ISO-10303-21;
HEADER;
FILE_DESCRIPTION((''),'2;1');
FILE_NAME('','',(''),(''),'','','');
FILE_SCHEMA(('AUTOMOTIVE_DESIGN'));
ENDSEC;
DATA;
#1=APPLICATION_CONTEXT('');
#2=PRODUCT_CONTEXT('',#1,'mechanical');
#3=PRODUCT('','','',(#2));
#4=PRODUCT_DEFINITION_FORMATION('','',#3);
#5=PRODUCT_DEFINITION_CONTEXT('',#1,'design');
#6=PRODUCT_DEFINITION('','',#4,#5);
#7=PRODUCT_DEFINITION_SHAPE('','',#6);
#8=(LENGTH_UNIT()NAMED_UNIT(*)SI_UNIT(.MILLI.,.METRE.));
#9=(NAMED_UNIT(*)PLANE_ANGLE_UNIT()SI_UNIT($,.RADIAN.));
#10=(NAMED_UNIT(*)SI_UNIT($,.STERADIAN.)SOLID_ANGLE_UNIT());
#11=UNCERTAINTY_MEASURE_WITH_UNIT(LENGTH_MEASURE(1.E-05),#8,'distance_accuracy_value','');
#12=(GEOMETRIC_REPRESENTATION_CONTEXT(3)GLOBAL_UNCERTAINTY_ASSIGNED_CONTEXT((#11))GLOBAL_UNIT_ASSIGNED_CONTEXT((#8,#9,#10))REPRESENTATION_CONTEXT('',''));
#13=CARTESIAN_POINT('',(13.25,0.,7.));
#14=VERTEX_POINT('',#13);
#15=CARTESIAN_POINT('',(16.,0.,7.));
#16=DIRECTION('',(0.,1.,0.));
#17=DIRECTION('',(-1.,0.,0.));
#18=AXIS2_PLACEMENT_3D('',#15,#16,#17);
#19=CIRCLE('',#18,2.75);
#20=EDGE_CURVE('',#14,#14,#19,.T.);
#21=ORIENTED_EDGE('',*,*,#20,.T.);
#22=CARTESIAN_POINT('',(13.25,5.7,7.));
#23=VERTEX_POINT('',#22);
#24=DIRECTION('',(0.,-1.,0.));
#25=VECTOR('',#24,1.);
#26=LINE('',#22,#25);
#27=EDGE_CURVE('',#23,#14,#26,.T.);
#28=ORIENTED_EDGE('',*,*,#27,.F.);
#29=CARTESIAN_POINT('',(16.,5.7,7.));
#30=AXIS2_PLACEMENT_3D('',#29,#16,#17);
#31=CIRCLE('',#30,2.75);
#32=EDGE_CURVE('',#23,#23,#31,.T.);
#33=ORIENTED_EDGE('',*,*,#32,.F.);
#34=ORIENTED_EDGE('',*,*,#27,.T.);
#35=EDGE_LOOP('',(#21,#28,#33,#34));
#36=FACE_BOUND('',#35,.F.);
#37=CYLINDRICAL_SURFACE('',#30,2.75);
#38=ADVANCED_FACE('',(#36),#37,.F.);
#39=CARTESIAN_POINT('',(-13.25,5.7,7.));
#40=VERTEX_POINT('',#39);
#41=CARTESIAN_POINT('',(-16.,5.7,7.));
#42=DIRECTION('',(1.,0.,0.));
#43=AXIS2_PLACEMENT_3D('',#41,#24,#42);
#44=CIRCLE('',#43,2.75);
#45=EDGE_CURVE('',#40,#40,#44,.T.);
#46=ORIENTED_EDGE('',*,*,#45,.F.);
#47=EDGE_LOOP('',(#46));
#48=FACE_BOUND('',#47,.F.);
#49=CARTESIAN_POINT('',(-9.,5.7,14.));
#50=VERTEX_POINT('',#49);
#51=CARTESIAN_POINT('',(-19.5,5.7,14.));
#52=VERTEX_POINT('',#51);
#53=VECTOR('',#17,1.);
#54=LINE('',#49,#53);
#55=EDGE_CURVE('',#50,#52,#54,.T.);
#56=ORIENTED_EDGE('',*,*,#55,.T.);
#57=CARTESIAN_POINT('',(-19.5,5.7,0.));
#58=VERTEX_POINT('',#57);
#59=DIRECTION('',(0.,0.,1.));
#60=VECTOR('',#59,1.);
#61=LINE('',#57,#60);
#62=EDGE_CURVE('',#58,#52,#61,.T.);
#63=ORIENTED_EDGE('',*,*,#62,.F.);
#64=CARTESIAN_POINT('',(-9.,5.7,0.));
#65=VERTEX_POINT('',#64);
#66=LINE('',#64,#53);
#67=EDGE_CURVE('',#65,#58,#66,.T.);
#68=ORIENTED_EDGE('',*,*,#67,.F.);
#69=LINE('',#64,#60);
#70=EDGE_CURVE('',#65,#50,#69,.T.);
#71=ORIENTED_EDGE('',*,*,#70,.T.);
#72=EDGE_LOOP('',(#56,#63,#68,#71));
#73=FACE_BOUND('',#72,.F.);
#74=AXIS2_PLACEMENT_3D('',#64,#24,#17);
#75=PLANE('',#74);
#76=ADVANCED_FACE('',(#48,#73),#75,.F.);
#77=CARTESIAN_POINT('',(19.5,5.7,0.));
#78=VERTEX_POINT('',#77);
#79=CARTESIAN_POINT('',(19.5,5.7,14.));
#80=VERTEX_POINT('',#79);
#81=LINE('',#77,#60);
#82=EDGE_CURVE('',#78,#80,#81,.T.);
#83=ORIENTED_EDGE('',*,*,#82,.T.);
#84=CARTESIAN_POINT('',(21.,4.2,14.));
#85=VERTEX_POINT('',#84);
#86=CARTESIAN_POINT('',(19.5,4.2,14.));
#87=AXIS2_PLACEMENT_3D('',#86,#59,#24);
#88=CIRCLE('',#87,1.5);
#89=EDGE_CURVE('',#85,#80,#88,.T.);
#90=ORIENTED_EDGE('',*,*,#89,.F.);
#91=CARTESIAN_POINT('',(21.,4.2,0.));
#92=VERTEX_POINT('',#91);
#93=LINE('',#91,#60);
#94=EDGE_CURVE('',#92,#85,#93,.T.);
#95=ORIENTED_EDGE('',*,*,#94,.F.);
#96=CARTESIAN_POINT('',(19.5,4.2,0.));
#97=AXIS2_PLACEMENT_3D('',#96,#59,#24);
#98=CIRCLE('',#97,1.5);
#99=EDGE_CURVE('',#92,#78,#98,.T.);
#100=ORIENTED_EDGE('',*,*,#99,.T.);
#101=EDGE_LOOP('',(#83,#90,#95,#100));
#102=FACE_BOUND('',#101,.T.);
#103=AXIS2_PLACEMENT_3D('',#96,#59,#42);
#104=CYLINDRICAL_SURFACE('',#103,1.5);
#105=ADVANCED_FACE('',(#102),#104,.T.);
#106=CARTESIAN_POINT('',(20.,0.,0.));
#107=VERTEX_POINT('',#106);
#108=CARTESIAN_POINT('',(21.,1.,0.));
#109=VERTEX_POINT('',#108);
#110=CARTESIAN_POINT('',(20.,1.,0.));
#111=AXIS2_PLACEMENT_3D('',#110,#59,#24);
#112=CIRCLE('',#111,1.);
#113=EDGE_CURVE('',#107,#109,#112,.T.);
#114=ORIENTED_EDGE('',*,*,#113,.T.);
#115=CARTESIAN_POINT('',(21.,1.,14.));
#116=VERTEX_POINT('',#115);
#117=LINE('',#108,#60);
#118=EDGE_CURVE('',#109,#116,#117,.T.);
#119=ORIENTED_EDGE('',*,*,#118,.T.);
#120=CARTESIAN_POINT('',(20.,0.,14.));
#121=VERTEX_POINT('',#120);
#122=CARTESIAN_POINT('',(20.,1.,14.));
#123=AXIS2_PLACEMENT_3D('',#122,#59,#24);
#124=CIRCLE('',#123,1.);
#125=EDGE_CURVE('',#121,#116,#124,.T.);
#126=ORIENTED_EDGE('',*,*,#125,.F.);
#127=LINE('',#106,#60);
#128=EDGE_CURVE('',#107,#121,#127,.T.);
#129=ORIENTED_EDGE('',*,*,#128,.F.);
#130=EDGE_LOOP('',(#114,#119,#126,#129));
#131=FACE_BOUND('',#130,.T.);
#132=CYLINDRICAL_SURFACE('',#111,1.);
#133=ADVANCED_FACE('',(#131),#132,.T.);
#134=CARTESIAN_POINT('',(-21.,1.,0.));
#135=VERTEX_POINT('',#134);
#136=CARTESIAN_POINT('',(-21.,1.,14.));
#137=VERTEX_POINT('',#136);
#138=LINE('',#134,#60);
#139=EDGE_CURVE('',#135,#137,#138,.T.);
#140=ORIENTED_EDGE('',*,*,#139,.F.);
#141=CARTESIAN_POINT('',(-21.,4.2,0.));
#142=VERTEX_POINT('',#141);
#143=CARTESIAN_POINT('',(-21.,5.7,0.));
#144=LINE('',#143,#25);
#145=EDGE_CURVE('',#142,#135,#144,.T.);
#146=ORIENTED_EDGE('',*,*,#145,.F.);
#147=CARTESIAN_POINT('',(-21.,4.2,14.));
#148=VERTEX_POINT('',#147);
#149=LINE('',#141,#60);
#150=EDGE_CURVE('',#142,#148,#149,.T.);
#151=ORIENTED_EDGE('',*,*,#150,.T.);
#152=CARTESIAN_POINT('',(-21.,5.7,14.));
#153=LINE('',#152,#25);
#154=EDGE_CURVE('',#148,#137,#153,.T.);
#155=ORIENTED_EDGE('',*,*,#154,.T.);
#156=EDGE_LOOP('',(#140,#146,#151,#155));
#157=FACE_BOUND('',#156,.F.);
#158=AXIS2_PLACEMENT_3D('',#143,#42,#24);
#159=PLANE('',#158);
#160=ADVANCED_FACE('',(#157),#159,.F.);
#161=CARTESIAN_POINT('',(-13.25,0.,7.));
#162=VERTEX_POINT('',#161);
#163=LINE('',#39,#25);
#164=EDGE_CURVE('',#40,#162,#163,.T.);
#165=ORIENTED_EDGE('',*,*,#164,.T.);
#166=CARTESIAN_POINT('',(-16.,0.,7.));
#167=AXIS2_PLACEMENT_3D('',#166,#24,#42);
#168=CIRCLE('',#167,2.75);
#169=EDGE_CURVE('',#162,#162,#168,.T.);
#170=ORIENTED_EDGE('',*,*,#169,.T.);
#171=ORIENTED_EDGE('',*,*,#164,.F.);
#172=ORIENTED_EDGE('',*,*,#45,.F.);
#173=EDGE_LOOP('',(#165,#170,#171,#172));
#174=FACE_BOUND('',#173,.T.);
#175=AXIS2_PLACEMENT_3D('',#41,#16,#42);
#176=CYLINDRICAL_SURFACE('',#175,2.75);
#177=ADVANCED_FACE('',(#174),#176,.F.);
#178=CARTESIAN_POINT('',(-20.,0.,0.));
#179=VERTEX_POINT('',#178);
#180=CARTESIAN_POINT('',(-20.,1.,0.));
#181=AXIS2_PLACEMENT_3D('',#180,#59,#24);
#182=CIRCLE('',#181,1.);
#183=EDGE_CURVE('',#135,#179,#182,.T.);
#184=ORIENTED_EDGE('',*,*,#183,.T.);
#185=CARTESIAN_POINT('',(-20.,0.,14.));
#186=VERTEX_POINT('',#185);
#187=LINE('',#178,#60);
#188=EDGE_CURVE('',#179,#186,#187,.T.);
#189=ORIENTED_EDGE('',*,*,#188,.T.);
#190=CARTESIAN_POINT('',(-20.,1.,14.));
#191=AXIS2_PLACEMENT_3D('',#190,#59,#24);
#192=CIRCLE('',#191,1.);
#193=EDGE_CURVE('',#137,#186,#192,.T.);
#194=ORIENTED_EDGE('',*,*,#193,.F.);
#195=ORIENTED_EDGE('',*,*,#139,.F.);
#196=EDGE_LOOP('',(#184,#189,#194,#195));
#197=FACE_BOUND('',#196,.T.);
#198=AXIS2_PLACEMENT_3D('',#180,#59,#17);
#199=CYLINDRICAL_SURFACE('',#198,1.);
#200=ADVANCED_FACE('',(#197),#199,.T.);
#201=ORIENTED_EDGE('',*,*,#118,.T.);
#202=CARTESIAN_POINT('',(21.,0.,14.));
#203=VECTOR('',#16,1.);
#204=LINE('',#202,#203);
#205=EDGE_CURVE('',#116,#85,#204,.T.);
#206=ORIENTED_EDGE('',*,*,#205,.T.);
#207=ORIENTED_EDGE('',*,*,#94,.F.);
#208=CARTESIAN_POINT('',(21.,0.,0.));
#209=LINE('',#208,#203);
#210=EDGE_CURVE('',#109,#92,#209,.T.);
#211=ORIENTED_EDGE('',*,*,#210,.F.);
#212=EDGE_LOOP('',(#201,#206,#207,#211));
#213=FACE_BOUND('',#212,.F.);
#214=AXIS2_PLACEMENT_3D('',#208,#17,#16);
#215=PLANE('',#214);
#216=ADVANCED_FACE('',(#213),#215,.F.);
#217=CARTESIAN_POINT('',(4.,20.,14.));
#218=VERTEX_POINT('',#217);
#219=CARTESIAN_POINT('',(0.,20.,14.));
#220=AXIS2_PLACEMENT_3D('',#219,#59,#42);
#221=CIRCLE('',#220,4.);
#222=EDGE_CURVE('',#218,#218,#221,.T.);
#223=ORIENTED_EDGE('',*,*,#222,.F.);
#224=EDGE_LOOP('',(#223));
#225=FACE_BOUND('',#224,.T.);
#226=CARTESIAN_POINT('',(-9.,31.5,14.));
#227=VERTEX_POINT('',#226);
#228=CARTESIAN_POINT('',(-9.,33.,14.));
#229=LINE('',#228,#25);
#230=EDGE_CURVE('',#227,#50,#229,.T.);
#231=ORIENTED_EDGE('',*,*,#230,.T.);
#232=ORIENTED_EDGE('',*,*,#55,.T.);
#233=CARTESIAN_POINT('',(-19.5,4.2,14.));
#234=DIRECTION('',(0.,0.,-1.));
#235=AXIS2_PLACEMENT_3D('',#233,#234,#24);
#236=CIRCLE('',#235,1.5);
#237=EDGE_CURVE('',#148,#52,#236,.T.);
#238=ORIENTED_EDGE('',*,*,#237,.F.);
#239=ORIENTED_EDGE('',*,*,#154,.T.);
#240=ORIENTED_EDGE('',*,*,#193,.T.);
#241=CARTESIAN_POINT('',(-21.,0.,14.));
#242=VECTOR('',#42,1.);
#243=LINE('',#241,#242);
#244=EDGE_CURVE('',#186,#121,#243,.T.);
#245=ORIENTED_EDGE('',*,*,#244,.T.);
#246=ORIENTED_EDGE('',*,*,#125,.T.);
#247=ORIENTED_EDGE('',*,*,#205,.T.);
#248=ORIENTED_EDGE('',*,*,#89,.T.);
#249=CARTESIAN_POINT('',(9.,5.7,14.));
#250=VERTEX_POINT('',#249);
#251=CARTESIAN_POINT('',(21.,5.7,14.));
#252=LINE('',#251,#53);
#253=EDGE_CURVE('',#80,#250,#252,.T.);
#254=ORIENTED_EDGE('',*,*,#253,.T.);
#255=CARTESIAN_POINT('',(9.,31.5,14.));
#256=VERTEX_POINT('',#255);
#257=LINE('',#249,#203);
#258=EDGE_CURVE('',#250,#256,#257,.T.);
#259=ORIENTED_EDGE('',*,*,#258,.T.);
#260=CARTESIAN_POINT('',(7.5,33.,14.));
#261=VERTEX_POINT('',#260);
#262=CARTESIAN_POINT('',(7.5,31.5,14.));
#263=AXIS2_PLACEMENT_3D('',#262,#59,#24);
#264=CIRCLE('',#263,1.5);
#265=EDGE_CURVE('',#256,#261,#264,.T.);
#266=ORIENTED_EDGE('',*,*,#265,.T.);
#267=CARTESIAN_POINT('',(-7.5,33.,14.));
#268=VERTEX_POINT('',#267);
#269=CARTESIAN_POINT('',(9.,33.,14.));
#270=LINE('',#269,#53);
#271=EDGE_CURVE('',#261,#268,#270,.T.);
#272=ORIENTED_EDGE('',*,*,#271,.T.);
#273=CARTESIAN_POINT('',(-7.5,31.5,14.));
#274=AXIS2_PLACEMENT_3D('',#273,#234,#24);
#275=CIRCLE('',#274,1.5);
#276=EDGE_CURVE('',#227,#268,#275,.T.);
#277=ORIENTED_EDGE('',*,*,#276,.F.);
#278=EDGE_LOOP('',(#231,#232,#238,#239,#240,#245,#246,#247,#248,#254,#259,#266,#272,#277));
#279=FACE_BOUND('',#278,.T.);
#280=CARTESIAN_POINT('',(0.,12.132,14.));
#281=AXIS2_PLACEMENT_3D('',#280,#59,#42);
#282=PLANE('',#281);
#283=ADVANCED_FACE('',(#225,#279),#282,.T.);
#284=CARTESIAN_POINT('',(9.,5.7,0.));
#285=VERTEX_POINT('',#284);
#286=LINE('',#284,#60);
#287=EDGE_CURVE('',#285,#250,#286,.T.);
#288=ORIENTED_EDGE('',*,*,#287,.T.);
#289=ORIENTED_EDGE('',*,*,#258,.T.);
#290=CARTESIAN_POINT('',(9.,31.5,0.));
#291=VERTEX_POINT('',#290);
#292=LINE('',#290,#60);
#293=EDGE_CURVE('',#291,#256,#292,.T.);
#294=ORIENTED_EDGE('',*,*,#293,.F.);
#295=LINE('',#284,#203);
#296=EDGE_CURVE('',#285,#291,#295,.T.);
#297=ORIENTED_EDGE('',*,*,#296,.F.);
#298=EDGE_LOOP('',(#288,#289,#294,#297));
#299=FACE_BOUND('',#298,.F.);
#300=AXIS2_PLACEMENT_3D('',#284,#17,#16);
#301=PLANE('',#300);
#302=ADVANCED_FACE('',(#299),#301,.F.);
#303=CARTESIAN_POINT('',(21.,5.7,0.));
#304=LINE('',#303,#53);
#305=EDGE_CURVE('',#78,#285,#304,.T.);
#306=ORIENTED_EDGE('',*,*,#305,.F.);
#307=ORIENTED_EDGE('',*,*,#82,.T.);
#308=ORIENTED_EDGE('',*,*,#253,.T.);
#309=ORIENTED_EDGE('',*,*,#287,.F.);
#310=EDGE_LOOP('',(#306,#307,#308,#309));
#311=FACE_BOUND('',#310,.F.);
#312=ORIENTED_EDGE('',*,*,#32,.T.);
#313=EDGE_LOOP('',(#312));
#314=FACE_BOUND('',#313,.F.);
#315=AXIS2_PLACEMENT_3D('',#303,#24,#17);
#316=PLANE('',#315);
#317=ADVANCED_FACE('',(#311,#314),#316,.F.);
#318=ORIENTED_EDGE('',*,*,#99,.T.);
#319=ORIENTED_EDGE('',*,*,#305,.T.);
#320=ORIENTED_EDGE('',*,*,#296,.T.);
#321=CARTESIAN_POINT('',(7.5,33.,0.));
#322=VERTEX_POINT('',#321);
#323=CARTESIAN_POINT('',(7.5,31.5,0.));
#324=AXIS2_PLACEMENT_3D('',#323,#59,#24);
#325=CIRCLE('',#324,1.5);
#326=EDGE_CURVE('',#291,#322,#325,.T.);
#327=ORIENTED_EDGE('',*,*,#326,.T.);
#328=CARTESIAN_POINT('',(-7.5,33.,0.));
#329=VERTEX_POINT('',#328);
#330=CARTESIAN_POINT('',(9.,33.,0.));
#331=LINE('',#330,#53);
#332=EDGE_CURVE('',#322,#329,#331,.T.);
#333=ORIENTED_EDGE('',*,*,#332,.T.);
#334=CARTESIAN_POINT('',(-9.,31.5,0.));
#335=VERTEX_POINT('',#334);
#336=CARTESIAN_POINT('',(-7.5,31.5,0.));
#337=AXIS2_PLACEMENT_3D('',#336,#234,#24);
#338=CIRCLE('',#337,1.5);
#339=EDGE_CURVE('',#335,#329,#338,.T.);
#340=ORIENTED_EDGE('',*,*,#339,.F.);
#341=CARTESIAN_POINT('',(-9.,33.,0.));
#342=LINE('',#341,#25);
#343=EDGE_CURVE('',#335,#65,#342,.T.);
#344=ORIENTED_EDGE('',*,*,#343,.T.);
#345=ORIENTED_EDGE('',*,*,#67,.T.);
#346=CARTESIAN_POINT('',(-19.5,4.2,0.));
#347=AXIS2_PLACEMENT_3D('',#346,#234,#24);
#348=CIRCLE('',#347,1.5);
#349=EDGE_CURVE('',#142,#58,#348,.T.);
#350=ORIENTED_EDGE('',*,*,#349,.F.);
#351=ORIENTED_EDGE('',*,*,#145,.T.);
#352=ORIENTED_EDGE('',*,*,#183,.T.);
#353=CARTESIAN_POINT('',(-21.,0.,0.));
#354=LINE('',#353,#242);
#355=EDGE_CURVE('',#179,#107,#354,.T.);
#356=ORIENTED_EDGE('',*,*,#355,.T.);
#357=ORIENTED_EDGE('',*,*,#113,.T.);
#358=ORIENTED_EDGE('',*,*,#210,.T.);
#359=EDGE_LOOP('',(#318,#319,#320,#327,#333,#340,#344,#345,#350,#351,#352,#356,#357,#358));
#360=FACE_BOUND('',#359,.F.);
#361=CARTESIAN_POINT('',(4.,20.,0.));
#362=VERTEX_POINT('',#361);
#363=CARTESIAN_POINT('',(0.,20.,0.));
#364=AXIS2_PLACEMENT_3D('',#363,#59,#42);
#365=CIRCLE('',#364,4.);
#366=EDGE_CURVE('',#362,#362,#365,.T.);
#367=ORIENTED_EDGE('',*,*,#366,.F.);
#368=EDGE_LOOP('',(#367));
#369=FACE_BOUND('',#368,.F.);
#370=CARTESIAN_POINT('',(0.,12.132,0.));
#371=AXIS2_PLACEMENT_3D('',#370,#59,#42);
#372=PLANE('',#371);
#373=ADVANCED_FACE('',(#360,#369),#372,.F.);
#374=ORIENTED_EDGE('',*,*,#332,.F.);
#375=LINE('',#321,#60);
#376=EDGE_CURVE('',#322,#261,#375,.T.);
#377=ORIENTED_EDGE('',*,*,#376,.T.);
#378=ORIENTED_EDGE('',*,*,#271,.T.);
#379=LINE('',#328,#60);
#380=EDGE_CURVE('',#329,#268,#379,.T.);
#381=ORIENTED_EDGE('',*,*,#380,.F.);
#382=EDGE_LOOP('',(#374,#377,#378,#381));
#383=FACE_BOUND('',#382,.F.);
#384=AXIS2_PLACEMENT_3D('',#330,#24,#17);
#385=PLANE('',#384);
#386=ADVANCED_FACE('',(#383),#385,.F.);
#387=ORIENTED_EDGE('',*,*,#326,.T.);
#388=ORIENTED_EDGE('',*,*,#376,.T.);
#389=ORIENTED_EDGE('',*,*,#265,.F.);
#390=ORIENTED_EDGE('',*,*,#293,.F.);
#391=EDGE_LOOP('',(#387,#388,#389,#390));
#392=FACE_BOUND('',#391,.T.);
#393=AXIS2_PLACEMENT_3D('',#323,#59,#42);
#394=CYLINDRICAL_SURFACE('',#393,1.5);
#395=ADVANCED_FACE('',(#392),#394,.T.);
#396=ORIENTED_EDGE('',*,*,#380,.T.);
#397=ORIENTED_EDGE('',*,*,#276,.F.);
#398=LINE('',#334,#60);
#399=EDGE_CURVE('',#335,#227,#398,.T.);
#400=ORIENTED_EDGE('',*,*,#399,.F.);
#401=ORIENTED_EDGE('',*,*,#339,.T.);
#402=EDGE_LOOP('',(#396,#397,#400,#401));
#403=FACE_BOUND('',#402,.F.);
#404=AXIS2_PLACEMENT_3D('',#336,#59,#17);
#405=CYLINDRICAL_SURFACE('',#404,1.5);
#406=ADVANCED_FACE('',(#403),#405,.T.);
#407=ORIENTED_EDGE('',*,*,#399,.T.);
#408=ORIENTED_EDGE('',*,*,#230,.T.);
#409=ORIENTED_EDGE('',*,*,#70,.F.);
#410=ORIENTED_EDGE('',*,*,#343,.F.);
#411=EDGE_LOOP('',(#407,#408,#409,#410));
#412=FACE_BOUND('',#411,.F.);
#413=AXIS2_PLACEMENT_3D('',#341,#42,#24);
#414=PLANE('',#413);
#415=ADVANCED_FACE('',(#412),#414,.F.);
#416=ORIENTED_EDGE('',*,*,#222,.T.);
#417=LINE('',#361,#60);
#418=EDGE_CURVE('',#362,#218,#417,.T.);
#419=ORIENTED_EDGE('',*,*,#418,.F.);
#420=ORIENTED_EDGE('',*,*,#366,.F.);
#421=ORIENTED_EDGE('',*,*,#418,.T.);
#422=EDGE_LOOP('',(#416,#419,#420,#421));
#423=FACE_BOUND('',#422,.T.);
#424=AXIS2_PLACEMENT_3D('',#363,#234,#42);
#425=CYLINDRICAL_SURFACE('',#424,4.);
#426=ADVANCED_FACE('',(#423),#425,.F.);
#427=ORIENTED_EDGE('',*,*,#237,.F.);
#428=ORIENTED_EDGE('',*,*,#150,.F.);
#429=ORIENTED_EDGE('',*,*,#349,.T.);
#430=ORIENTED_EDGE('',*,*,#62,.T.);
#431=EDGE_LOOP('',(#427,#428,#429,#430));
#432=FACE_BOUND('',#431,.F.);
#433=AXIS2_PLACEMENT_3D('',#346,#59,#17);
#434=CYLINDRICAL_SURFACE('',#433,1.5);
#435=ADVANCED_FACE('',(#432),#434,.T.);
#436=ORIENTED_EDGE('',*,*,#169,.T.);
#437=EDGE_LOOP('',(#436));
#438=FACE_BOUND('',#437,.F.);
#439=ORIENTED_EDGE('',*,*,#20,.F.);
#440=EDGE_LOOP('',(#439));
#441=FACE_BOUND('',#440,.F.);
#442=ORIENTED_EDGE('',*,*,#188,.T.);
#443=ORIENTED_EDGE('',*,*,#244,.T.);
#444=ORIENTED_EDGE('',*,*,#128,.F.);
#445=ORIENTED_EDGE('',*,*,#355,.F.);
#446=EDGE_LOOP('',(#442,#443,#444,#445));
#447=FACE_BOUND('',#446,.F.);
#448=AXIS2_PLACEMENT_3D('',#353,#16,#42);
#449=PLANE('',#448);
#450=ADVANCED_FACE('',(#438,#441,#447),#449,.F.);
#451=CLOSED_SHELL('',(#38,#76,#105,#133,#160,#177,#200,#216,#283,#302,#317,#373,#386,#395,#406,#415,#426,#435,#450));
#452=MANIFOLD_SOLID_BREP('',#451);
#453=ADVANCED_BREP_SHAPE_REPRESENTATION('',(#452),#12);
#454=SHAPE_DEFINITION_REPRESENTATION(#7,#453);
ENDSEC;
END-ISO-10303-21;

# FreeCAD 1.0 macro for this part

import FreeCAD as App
import Part
import Sketcher

V = App.Vector
Q = App.Units.Quantity


def edges_at(feature, points):
    """Names of the edges that pass closest to the given points."""
    edges = feature.Shape.Edges
    near = lambda p: min(range(len(edges)), key=lambda i: edges[i].distToShape(Part.Vertex(*p))[0])
    return sorted({f"Edge{near(p) + 1}" for p in points})

doc = App.newDocument("Part")
params = doc.addObject("Spreadsheet::Sheet", "Params")
for row, (alias, value) in enumerate([
    ("sketch1_diameter", "8 mm"),
    ("sketch1_width", "42 mm"),
    ("sketch1_width2", "12 mm"),
    ("sketch1_height", "5.7 mm"),
    ("sketch1_height2", "27.3 mm"),
    ("pad1_length", "14 mm"),
    ("sketch2_diameter", "5.5 mm"),
    ("pocket1_length", "5.7 mm"),
    ("fillet_radius", "1.5 mm"),
    ("fillet2_radius", "1 mm"),
], start=1):
    params.set(f"A{row}", alias)
    params.set(f"B{row}", "=" + value)
    params.setAlias(f"B{row}", alias)

body = doc.addObject("PartDesign::Body", "Body")

sketch1 = body.newObject("Sketcher::SketchObject", "Sketch")
sketch1.AttachmentSupport = (doc.getObject("XY_Plane"), [""])
sketch1.MapMode = "FlatFace"
sketch1.addGeometry(Part.LineSegment(V(-21, 0, 0), V(21, 0, 0)), False)
sketch1.addGeometry(Part.LineSegment(V(21, 0, 0), V(21, 5.7, 0)), False)
sketch1.addGeometry(Part.LineSegment(V(21, 5.7, 0), V(9, 5.7, 0)), False)
sketch1.addGeometry(Part.LineSegment(V(9, 5.7, 0), V(9, 33, 0)), False)
sketch1.addGeometry(Part.LineSegment(V(9, 33, 0), V(-9, 33, 0)), False)
sketch1.addGeometry(Part.LineSegment(V(-9, 33, 0), V(-9, 5.7, 0)), False)
sketch1.addGeometry(Part.LineSegment(V(-9, 5.7, 0), V(-21, 5.7, 0)), False)
sketch1.addGeometry(Part.LineSegment(V(-21, 5.7, 0), V(-21, 0, 0)), False)
sketch1.addGeometry(Part.Circle(V(0, 20, 0), V(0, 0, 1), 4), False)
sketch1.addConstraint(Sketcher.Constraint("Coincident", 0, 2, 1, 1))
sketch1.addConstraint(Sketcher.Constraint("Coincident", 1, 2, 2, 1))
sketch1.addConstraint(Sketcher.Constraint("Coincident", 2, 2, 3, 1))
sketch1.addConstraint(Sketcher.Constraint("Coincident", 3, 2, 4, 1))
sketch1.addConstraint(Sketcher.Constraint("Coincident", 4, 2, 5, 1))
sketch1.addConstraint(Sketcher.Constraint("Coincident", 5, 2, 6, 1))
sketch1.addConstraint(Sketcher.Constraint("Coincident", 6, 2, 7, 1))
sketch1.addConstraint(Sketcher.Constraint("Coincident", 7, 2, 0, 1))
sketch1.addConstraint(Sketcher.Constraint("Horizontal", 0))
sketch1.addConstraint(Sketcher.Constraint("Vertical", 1))
sketch1.addConstraint(Sketcher.Constraint("Horizontal", 2))
sketch1.addConstraint(Sketcher.Constraint("Vertical", 3))
sketch1.addConstraint(Sketcher.Constraint("Horizontal", 4))
sketch1.addConstraint(Sketcher.Constraint("Vertical", 5))
sketch1.addConstraint(Sketcher.Constraint("Horizontal", 6))
sketch1.addConstraint(Sketcher.Constraint("Vertical", 7))
sketch1.addConstraint(Sketcher.Constraint("Symmetric", 0, 2, 7, 2, -1, 1))
sketch1.addConstraint(Sketcher.Constraint("Symmetric", 2, 2, 5, 2, -2))
sketch1.addConstraint(Sketcher.Constraint("PointOnObject", 8, 3, -2))
sketch1.addConstraint(Sketcher.Constraint("Diameter", 8, Q("8 mm")))
sketch1.addConstraint(Sketcher.Constraint("DistanceX", 0, 1, 0, 2, Q("42 mm")))
sketch1.addConstraint(Sketcher.Constraint("DistanceX", 2, 2, 2, 1, Q("12 mm")))
sketch1.addConstraint(Sketcher.Constraint("DistanceY", 1, 1, 1, 2, Q("5.7 mm")))
sketch1.addConstraint(Sketcher.Constraint("DistanceY", 3, 1, 3, 2, Q("27.3 mm")))
sketch1.addConstraint(Sketcher.Constraint("DistanceY", -1, 1, 8, 3, Q("20 mm")))
sketch1.setExpression("Constraints[19]", "Params.sketch1_diameter")
sketch1.setExpression("Constraints[20]", "Params.sketch1_width")
sketch1.setExpression("Constraints[21]", "Params.sketch1_width2")
sketch1.setExpression("Constraints[22]", "Params.sketch1_height")
sketch1.setExpression("Constraints[23]", "Params.sketch1_height2")
pad1 = body.newObject("PartDesign::Pad", "Pad")
pad1.Profile = sketch1
pad1.setExpression("Length", "Params.pad1_length")

sketch2 = body.newObject("Sketcher::SketchObject", "Sketch001")
sketch2.AttachmentSupport = (doc.getObject("XZ_Plane"), [""])
sketch2.MapMode = "FlatFace"
sketch2.AttachmentOffset = App.Placement(V(0, 0, -5.7), App.Rotation())
sketch2.addGeometry(Part.Circle(V(16, 7, 0), V(0, 0, 1), 2.8), False)
sketch2.addConstraint(Sketcher.Constraint("Diameter", 0, Q("5.5 mm")))
sketch2.addConstraint(Sketcher.Constraint("DistanceX", -1, 1, 0, 3, Q("16 mm")))
sketch2.addConstraint(Sketcher.Constraint("DistanceY", -1, 1, 0, 3, Q("7 mm")))
sketch2.setExpression("Constraints[0]", "Params.sketch2_diameter")
pocket1 = body.newObject("PartDesign::Pocket", "Pocket")
pocket1.Profile = sketch2
pocket1.setExpression("Length", "Params.pocket1_length")
pocket1.Reversed = True
doc.recompute()

mirrored = body.newObject("PartDesign::Mirrored", "Mirrored")
mirrored.Originals = [pocket1]
mirrored.MirrorPlane = (doc.getObject("YZ_Plane"), [""])
body.Tip = mirrored
doc.recompute()

fillet = body.newObject("PartDesign::Fillet", "Fillet")
fillet.Base = (mirrored, edges_at(mirrored, [
    (21, 5.7, 7),
    (-21, 5.7, 7),
    (-9, 33, 7),
    (9, 33, 7),
]))
fillet.setExpression("Radius", "Params.fillet_radius")
doc.recompute()

fillet2 = body.newObject("PartDesign::Fillet", "Fillet001")
fillet2.Base = (fillet, edges_at(fillet, [(21, 0, 7), (-21, 0, 7)]))
fillet2.setExpression("Radius", "Params.fillet2_radius")

doc.recompute()
